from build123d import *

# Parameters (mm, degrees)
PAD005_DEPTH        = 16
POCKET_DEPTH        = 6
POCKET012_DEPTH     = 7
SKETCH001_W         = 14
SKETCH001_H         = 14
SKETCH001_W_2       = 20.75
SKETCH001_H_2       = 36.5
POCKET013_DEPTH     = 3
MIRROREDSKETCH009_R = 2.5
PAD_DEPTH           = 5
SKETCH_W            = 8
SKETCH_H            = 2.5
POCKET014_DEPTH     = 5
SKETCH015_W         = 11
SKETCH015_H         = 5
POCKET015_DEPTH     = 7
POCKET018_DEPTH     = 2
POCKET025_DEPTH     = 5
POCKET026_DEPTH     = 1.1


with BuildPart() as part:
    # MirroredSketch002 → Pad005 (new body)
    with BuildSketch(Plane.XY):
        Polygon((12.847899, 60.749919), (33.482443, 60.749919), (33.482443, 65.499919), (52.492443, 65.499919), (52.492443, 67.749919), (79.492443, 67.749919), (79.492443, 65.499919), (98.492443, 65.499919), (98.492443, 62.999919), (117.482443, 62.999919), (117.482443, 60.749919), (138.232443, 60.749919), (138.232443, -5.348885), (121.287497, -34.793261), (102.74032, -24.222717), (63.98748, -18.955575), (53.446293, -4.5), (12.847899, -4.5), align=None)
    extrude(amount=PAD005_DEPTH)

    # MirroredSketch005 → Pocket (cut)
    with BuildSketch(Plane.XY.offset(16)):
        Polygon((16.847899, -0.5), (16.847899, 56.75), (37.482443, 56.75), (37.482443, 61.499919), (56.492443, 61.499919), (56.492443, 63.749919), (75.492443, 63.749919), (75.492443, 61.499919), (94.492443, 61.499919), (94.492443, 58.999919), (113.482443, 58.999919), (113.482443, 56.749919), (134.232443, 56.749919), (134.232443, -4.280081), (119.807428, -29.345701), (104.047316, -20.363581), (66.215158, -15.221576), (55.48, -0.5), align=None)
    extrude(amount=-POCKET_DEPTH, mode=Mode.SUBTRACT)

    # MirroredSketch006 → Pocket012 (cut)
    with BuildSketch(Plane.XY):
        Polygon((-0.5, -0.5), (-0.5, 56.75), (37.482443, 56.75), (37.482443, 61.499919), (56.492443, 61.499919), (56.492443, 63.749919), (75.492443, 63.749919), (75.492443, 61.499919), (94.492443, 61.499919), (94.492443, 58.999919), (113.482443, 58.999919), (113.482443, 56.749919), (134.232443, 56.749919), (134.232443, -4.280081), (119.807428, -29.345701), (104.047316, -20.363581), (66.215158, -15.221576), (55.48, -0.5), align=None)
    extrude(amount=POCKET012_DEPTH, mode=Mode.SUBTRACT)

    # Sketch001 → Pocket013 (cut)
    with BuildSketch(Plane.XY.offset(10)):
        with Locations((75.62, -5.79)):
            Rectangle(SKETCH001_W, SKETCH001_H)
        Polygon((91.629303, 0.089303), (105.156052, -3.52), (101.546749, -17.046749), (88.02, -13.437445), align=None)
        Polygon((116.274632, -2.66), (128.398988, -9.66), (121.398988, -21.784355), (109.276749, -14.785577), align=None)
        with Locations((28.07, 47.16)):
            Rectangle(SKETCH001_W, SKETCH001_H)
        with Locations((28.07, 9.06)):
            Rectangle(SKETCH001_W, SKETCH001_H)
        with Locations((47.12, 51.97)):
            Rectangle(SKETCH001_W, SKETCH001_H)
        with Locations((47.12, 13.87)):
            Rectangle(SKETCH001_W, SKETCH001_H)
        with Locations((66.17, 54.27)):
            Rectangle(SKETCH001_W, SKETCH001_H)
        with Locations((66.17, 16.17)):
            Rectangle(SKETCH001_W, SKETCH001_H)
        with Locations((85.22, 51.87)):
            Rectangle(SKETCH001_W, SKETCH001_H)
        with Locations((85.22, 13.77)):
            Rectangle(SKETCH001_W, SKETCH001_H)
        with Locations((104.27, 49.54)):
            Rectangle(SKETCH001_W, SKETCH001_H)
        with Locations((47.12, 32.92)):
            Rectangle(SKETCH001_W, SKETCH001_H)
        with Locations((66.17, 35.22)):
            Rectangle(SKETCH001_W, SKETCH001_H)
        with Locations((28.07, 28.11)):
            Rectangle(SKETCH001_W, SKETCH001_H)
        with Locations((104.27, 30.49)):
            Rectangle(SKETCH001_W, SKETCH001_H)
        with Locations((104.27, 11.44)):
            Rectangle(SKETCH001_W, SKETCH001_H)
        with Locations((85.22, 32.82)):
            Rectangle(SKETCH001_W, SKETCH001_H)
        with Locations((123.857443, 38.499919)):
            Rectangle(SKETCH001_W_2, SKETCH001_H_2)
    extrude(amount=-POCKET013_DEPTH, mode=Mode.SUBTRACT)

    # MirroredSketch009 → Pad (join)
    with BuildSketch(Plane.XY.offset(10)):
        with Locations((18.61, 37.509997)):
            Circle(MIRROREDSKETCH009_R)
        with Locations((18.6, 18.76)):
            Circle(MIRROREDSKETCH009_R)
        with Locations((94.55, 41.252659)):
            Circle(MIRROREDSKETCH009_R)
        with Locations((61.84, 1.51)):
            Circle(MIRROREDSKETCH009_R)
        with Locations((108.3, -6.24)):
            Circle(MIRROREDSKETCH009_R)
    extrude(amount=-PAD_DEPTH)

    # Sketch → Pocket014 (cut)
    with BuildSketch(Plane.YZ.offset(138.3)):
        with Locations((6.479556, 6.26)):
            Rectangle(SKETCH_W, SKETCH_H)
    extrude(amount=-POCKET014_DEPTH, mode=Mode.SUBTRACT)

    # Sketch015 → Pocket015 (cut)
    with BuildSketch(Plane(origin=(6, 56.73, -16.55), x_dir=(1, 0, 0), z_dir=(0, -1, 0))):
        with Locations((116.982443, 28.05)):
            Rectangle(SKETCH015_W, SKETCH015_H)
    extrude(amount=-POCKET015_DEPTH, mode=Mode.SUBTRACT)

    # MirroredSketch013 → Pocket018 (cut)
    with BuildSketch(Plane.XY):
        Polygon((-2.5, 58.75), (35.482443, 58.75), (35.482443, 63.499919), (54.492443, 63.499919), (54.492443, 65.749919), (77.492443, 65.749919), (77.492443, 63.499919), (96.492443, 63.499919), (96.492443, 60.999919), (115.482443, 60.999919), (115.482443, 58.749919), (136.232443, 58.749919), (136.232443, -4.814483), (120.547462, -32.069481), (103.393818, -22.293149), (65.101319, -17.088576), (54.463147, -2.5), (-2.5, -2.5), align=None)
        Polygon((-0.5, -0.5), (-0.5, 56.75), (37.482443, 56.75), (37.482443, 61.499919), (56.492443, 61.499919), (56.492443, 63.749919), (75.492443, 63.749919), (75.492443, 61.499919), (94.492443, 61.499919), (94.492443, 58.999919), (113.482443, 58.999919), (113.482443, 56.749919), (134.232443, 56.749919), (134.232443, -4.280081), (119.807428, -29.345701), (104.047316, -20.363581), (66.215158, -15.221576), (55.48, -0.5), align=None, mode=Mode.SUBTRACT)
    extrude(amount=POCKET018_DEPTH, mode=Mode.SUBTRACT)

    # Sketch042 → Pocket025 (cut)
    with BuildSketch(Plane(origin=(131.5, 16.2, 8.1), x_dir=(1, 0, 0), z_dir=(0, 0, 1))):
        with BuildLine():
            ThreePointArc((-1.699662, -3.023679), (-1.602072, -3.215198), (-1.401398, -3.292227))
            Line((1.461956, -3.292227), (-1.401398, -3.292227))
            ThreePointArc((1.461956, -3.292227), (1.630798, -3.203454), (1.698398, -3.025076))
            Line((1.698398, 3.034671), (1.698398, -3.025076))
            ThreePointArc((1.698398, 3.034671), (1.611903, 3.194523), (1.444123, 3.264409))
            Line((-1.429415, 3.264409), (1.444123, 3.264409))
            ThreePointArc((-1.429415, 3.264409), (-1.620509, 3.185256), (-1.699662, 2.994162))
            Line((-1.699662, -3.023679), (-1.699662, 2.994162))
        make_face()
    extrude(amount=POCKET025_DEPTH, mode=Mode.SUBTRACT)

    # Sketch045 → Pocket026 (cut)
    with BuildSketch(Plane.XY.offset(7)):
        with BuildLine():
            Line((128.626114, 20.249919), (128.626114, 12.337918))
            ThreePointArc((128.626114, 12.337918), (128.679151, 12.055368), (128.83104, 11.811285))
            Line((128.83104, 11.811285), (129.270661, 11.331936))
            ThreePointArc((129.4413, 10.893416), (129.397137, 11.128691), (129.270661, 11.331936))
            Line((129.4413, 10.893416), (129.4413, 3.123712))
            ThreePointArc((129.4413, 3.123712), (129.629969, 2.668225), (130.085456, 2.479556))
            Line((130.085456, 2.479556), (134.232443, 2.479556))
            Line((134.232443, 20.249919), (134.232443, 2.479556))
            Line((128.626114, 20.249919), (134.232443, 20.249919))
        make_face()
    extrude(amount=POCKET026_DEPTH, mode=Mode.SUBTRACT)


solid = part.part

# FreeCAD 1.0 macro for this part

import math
import FreeCAD as App
import Part
import Sketcher
Q = App.Units.Quantity


def add_polygon(sketch, points):
    """Adds a closed chain of lines whose ends are joined by coincident constraints."""
    first, n = sketch.GeometryCount, len(points)
    for a, b in zip(points, points[1:] + points[:1]):
        sketch.addGeometry(Part.LineSegment(App.Vector(*a, 0), App.Vector(*b, 0)), False)
    for i in range(n):
        sketch.addConstraint(Sketcher.Constraint("Coincident", first + i, 2, first + (i + 1) % n, 1))

doc = App.newDocument("Part")
body = doc.addObject("PartDesign::Body", "Body")

# Sketch on XY plane
sketch1 = doc.addObject("Sketcher::SketchObject", "Sketch")
body.addObject(sketch1)
sketch1.AttachmentSupport = (doc.XY_Plane, [""])
sketch1.MapMode = "FlatFace"
add_polygon(sketch1, [(33.5, 60.7), (12.8, 60.7), (12.8, -4.5), (53.4, -4.5), (64, -19), (102.7, -24.2), (121.3, -34.8), (138.2, -5.3), (138.2, 60.7), (117.5, 60.7), (117.5, 63), (98.5, 63), (98.5, 65.5), (79.5, 65.5), (79.5, 67.7), (52.5, 67.7), (52.5, 65.5), (33.5, 65.5)])  # lines 0-17
sketch1.addConstraint([
    Sketcher.Constraint("Horizontal", 0),
    Sketcher.Constraint("Vertical", 1),
    Sketcher.Constraint("Horizontal", 2),
    Sketcher.Constraint("Vertical", 7),
    Sketcher.Constraint("Horizontal", 8),
    Sketcher.Constraint("Vertical", 9),
    Sketcher.Constraint("Horizontal", 10),
    Sketcher.Constraint("Vertical", 11),
    Sketcher.Constraint("Horizontal", 12),
    Sketcher.Constraint("Vertical", 13),
    Sketcher.Constraint("Horizontal", 14),
    Sketcher.Constraint("Vertical", 15),
    Sketcher.Constraint("Horizontal", 16),
    Sketcher.Constraint("Vertical", 17),
    Sketcher.Constraint("Horizontal", 0, 2, 7, 2),
    Sketcher.Constraint("Horizontal", 12, 2, 15, 2),
    Sketcher.Constraint("Equal", 9, 13),
    Sketcher.Constraint("DistanceX", 12, 2, 12, 1, Q("19 mm")),
    Sketcher.Constraint("DistanceX", 14, 2, 14, 1, Q("27 mm")),
    Sketcher.Constraint("DistanceY", 11, 1, 11, 2, Q("2.5 mm")),
    Sketcher.Constraint("Angle", 3, Q("-53.899999 deg")),
    Sketcher.Constraint("DistanceY", 8, 2, 13, 2, Q("7 mm")),
    Sketcher.Constraint("DistanceX", 8, 2, 8, 1, Q("20.75 mm")),
    Sketcher.Constraint("DistanceX", 10, 2, 10, 1, Q("18.99 mm")),
    Sketcher.Constraint("DistanceX", 16, 2, 16, 1, Q("19.01 mm")),
    Sketcher.Constraint("DistanceY", 1, 2, -1, 1, Q("4.5 mm")),
    Sketcher.Constraint("Angle", 4, Q("-7.740001 deg")),
    Sketcher.Constraint("Angle", 5, Q("-29.68 deg")),
    Sketcher.Constraint("Angle", 6, Q("60.080001 deg")),
    Sketcher.Constraint("DistanceY", 1, 2, 1, 1, Q("65.249919 mm")),
    Sketcher.Constraint("DistanceX", -1, 1, 0, 2, Q("12.847899 mm")),
    Sketcher.Constraint("DistanceX", 1, 2, 5, 2, Q("108.439598 mm")),
    Sketcher.Constraint("Distance", 5, Q("21.347931 mm")),
    Sketcher.Constraint("DistanceX", 0, 2, 0, 1, Q("20.634544 mm")),
    Sketcher.Constraint("DistanceX", 2, 1, 2, 2, Q("40.598394 mm")),
    Sketcher.Constraint("DistanceY", 7, 1, 7, 2, Q("66.098804 mm")),
])
pad1 = doc.addObject("PartDesign::Pad", "Pad")
body.addObject(pad1)
pad1.Profile = sketch1
pad1.Length = 16

# Sketch on XY plane
sketch2 = doc.addObject("Sketcher::SketchObject", "Sketch001")
body.addObject(sketch2)
sketch2.AttachmentSupport = (doc.XY_Plane, [""])
sketch2.MapMode = "FlatFace"
sketch2.AttachmentOffset = App.Placement(App.Vector(0, 0, 16), App.Rotation())
add_polygon(sketch2, [(16.8, 56.8), (16.8, -0.5), (55.5, -0.5), (66.2, -15.2), (104, -20.4), (119.8, -29.3), (134.2, -4.3), (134.2, 56.7), (113.5, 56.7), (113.5, 59), (94.5, 59), (94.5, 61.5), (75.5, 61.5), (75.5, 63.7), (56.5, 63.7), (56.5, 61.5), (37.5, 61.5), (37.5, 56.8)])  # lines 0-17
sketch2.addConstraint([
    Sketcher.Constraint("Vertical", 0),
    Sketcher.Constraint("Horizontal", 1),
    Sketcher.Constraint("Vertical", 6),
    Sketcher.Constraint("Horizontal", 7),
    Sketcher.Constraint("Vertical", 8),
    Sketcher.Constraint("Horizontal", 9),
    Sketcher.Constraint("Vertical", 10),
    Sketcher.Constraint("Horizontal", 11),
    Sketcher.Constraint("Vertical", 12),
    Sketcher.Constraint("Horizontal", 13),
    Sketcher.Constraint("Vertical", 14),
    Sketcher.Constraint("Horizontal", 15),
    Sketcher.Constraint("Vertical", 16),
    Sketcher.Constraint("Horizontal", 17),
    Sketcher.Constraint("Horizontal", 11, 2, 14, 2),
    Sketcher.Constraint("Equal", 11, 13),
    Sketcher.Constraint("Equal", 8, 12),
    Sketcher.Constraint("DistanceX", 11, 2, 11, 1, Q("19 mm")),
    Sketcher.Constraint("DistanceY", 10, 1, 10, 2, Q("2.5 mm")),
    Sketcher.Constraint("Angle", 2, Q("-53.9 deg")),
    Sketcher.Constraint("DistanceY", 7, 2, 12, 2, Q("7 mm")),
    Sketcher.Constraint("DistanceX", 7, 2, 7, 1, Q("20.75 mm")),
    Sketcher.Constraint("DistanceX", 9, 2, 9, 1, Q("18.99 mm")),
    Sketcher.Constraint("DistanceX", 15, 2, 15, 1, Q("19.01 mm")),
    Sketcher.Constraint("DistanceY", 0, 2, 0, 1, Q("57.25 mm")),
    Sketcher.Constraint("DistanceY", 6, 1, 6, 2, Q("61.03 mm")),
    Sketcher.Constraint("DistanceY", 0, 2, -1, 1, Q("0.5 mm")),
    Sketcher.Constraint("Angle", 3, Q("-7.739999 deg")),
    Sketcher.Constraint("Angle", 4, Q("-29.680001 deg")),
    Sketcher.Constraint("Angle", 5, Q("60.080001 deg")),
    Sketcher.Constraint("Distance", 2, Q("18.22 mm")),
    Sketcher.Constraint("Distance", 3, Q("38.18 mm")),
    Sketcher.Constraint("Distance", 4, Q("18.14 mm")),
    Sketcher.Constraint("Distance", 5, Q("28.919999 mm")),
    Sketcher.Constraint("DistanceX", -1, 1, 1, 2, Q("55.48 mm")),
    Sketcher.Constraint("DistanceX", 1, 1, 1, 2, Q("38.632101 mm")),
])
pocket1 = doc.addObject("PartDesign::Pocket", "Pocket")
body.addObject(pocket1)
pocket1.Profile = sketch2
pocket1.Length = 6

# Sketch on XY plane
sketch3 = doc.addObject("Sketcher::SketchObject", "Sketch002")
body.addObject(sketch3)
sketch3.AttachmentSupport = (doc.XY_Plane, [""])
sketch3.MapMode = "FlatFace"
add_polygon(sketch3, [(-0.5, 56.8), (-0.5, -0.5), (55.5, -0.5), (66.2, -15.2), (104, -20.4), (119.8, -29.3), (134.2, -4.3), (134.2, 56.7), (113.5, 56.7), (113.5, 59), (94.5, 59), (94.5, 61.5), (75.5, 61.5), (75.5, 63.7), (56.5, 63.7), (56.5, 61.5), (37.5, 61.5), (37.5, 56.8)])  # lines 0-17
sketch3.addConstraint([
    Sketcher.Constraint("Vertical", 0),
    Sketcher.Constraint("Horizontal", 1),
    Sketcher.Constraint("Vertical", 6),
    Sketcher.Constraint("Horizontal", 7),
    Sketcher.Constraint("Vertical", 8),
    Sketcher.Constraint("Horizontal", 9),
    Sketcher.Constraint("Vertical", 10),
    Sketcher.Constraint("Horizontal", 11),
    Sketcher.Constraint("Vertical", 12),
    Sketcher.Constraint("Horizontal", 13),
    Sketcher.Constraint("Vertical", 14),
    Sketcher.Constraint("Horizontal", 15),
    Sketcher.Constraint("Vertical", 16),
    Sketcher.Constraint("Horizontal", 17),
    Sketcher.Constraint("Horizontal", 11, 2, 14, 2),
    Sketcher.Constraint("Equal", 11, 13),
    Sketcher.Constraint("Equal", 8, 12),
    Sketcher.Constraint("DistanceX", 11, 2, 11, 1, Q("19 mm")),
    Sketcher.Constraint("DistanceY", 10, 1, 10, 2, Q("2.5 mm")),
    Sketcher.Constraint("Angle", 2, Q("-53.9 deg")),
    Sketcher.Constraint("DistanceY", 7, 2, 12, 2, Q("7 mm")),
    Sketcher.Constraint("DistanceX", 1, 1, 1, 2, Q("55.98 mm")),
    Sketcher.Constraint("DistanceX", 7, 2, 7, 1, Q("20.75 mm")),
    Sketcher.Constraint("DistanceX", 9, 2, 9, 1, Q("18.99 mm")),
    Sketcher.Constraint("DistanceX", 15, 2, 15, 1, Q("19.01 mm")),
    Sketcher.Constraint("DistanceY", 0, 2, 0, 1, Q("57.25 mm")),
    Sketcher.Constraint("DistanceY", 6, 1, 6, 2, Q("61.03 mm")),
    Sketcher.Constraint("DistanceX", 0, 2, -1, 1, Q("0.5 mm")),
    Sketcher.Constraint("DistanceY", 0, 2, -1, 1, Q("0.5 mm")),
    Sketcher.Constraint("Angle", 3, Q("-7.739999 deg")),
    Sketcher.Constraint("Angle", 4, Q("-29.680001 deg")),
    Sketcher.Constraint("Angle", 5, Q("60.080001 deg")),
    Sketcher.Constraint("Distance", 2, Q("18.22 mm")),
    Sketcher.Constraint("Distance", 3, Q("38.18 mm")),
    Sketcher.Constraint("Distance", 4, Q("18.14 mm")),
    Sketcher.Constraint("Distance", 5, Q("28.919999 mm")),
])
pocket2 = doc.addObject("PartDesign::Pocket", "Pocket001")
body.addObject(pocket2)
pocket2.Profile = sketch3
pocket2.Length = 7
pocket2.Reversed = True

# Sketch on XY plane
sketch4 = doc.addObject("Sketcher::SketchObject", "Sketch003")
body.addObject(sketch4)
sketch4.AttachmentSupport = (doc.XY_Plane, [""])
sketch4.MapMode = "FlatFace"
sketch4.AttachmentOffset = App.Placement(App.Vector(0, 0, 10), App.Rotation())
add_polygon(sketch4, [(69, 1), (69, -13), (83, -13), (83, 1)])  # lines 0-3
add_polygon(sketch4, [(105, -4), (92, 0), (88, -13), (102, -17)])  # lines 4-7
add_polygon(sketch4, [(128, -10), (116, -3), (109, -15), (121, -22)])  # lines 8-11
add_polygon(sketch4, [(21, 54), (21, 40), (35, 40), (35, 54)])  # lines 12-15
add_polygon(sketch4, [(21, 16), (21, 2), (35, 2), (35, 16)])  # lines 16-19
add_polygon(sketch4, [(40, 59), (40, 45), (54, 45), (54, 59)])  # lines 20-23
add_polygon(sketch4, [(40, 21), (40, 7), (54, 7), (54, 21)])  # lines 24-27
add_polygon(sketch4, [(59, 61), (59, 47), (73, 47), (73, 61)])  # lines 28-31
add_polygon(sketch4, [(59, 23), (59, 9), (73, 9), (73, 23)])  # lines 32-35
add_polygon(sketch4, [(78, 59), (78, 45), (92, 45), (92, 59)])  # lines 36-39
add_polygon(sketch4, [(78, 21), (78, 7), (92, 7), (92, 21)])  # lines 40-43
add_polygon(sketch4, [(97, 57), (97, 43), (111, 43), (111, 57)])  # lines 44-47
add_polygon(sketch4, [(40, 40), (40, 26), (54, 26), (54, 40)])  # lines 48-51
add_polygon(sketch4, [(59, 42), (59, 28), (73, 28), (73, 42)])  # lines 52-55
add_polygon(sketch4, [(21, 35), (21, 21), (35, 21), (35, 35)])  # lines 56-59
add_polygon(sketch4, [(97, 37), (97, 23), (111, 23), (111, 37)])  # lines 60-63
add_polygon(sketch4, [(97, 18), (97, 4), (111, 4), (111, 18)])  # lines 64-67
add_polygon(sketch4, [(78, 40), (78, 26), (92, 26), (92, 40)])  # lines 68-71
add_polygon(sketch4, [(113, 57), (113, 20), (134, 20), (134, 57)])  # lines 72-75
sketch4.addConstraint([
    Sketcher.Constraint("Vertical", 0),
    Sketcher.Constraint("Horizontal", 1),
    Sketcher.Constraint("Vertical", 2),
    Sketcher.Constraint("Horizontal", 3),
    Sketcher.Constraint("Vertical", 12),
    Sketcher.Constraint("Horizontal", 13),
    Sketcher.Constraint("Vertical", 14),
    Sketcher.Constraint("Horizontal", 15),
    Sketcher.Constraint("Vertical", 16),
    Sketcher.Constraint("Horizontal", 17),
    Sketcher.Constraint("Vertical", 18),
    Sketcher.Constraint("Horizontal", 19),
    Sketcher.Constraint("Vertical", 20),
    Sketcher.Constraint("Horizontal", 21),
    Sketcher.Constraint("Vertical", 22),
    Sketcher.Constraint("Horizontal", 23),
    Sketcher.Constraint("Vertical", 24),
    Sketcher.Constraint("Horizontal", 25),
    Sketcher.Constraint("Vertical", 26),
    Sketcher.Constraint("Horizontal", 27),
    Sketcher.Constraint("Vertical", 28),
    Sketcher.Constraint("Horizontal", 29),
    Sketcher.Constraint("Vertical", 30),
    Sketcher.Constraint("Horizontal", 31),
    Sketcher.Constraint("Vertical", 32),
    Sketcher.Constraint("Horizontal", 33),
    Sketcher.Constraint("Vertical", 34),
    Sketcher.Constraint("Horizontal", 35),
    Sketcher.Constraint("Vertical", 36),
    Sketcher.Constraint("Horizontal", 37),
    Sketcher.Constraint("Vertical", 38),
    Sketcher.Constraint("Horizontal", 39),
    Sketcher.Constraint("Vertical", 40),
    Sketcher.Constraint("Horizontal", 41),
    Sketcher.Constraint("Vertical", 42),
    Sketcher.Constraint("Horizontal", 43),
    Sketcher.Constraint("Vertical", 44),
    Sketcher.Constraint("Horizontal", 45),
    Sketcher.Constraint("Vertical", 46),
    Sketcher.Constraint("Horizontal", 47),
    Sketcher.Constraint("Vertical", 48),
    Sketcher.Constraint("Horizontal", 49),
    Sketcher.Constraint("Vertical", 50),
    Sketcher.Constraint("Horizontal", 51),
    Sketcher.Constraint("Vertical", 52),
    Sketcher.Constraint("Horizontal", 53),
    Sketcher.Constraint("Vertical", 54),
    Sketcher.Constraint("Horizontal", 55),
    Sketcher.Constraint("Vertical", 56),
    Sketcher.Constraint("Horizontal", 57),
    Sketcher.Constraint("Vertical", 58),
    Sketcher.Constraint("Horizontal", 59),
    Sketcher.Constraint("Vertical", 60),
    Sketcher.Constraint("Horizontal", 61),
    Sketcher.Constraint("Vertical", 62),
    Sketcher.Constraint("Horizontal", 63),
    Sketcher.Constraint("Vertical", 64),
    Sketcher.Constraint("Horizontal", 65),
    Sketcher.Constraint("Vertical", 66),
    Sketcher.Constraint("Horizontal", 67),
    Sketcher.Constraint("Vertical", 68),
    Sketcher.Constraint("Horizontal", 69),
    Sketcher.Constraint("Vertical", 70),
    Sketcher.Constraint("Horizontal", 71),
    Sketcher.Constraint("Vertical", 72),
    Sketcher.Constraint("Horizontal", 73),
    Sketcher.Constraint("Vertical", 74),
    Sketcher.Constraint("Horizontal", 75),
    Sketcher.Constraint("Perpendicular", 4, 5),
    Sketcher.Constraint("Perpendicular", 5, 6),
    Sketcher.Constraint("Perpendicular", 6, 7),
    Sketcher.Constraint("Parallel", 8, 10),
    Sketcher.Constraint("Perpendicular", 10, 11),
    Sketcher.Constraint("Vertical", 15, 2, 16, 2),
    Sketcher.Constraint("Vertical", 14, 2, 17, 2),
    Sketcher.Constraint("Vertical", 23, 2, 24, 2),
    Sketcher.Constraint("Vertical", 22, 2, 25, 2),
    Sketcher.Constraint("Vertical", 31, 2, 32, 2),
    Sketcher.Constraint("Vertical", 30, 2, 33, 2),
    Sketcher.Constraint("Vertical", 39, 2, 40, 2),
    Sketcher.Constraint("Vertical", 38, 2, 41, 2),
    Sketcher.Constraint("Vertical", 27, 2, 48, 2),
    Sketcher.Constraint("Vertical", 26, 2, 49, 2),
    Sketcher.Constraint("Vertical", 35, 2, 52, 2),
    Sketcher.Constraint("Vertical", 34, 2, 53, 2),
    Sketcher.Constraint("Vertical", 19, 2, 56, 2),
    Sketcher.Constraint("Vertical", 18, 2, 57, 2),
    Sketcher.Constraint("Vertical", 47, 2, 60, 2),
    Sketcher.Constraint("Vertical", 46, 2, 61, 2),
    Sketcher.Constraint("Vertical", 63, 2, 64, 2),
    Sketcher.Constraint("Vertical", 62, 2, 65, 2),
    Sketcher.Constraint("Vertical", 43, 2, 68, 2),
    Sketcher.Constraint("Vertical", 42, 2, 69, 2),
    Sketcher.Constraint("Equal", 3, 13),
    Sketcher.Constraint("Equal", 19, 21),
    Sketcher.Constraint("Equal", 27, 29),
    Sketcher.Constraint("Equal", 35, 37),
    Sketcher.Constraint("Equal", 43, 45),
    Sketcher.Constraint("Equal", 71, 0),
    Sketcher.Constraint("Equal", 2, 12),
    Sketcher.Constraint("Equal", 14, 16),
    Sketcher.Constraint("Equal", 18, 20),
    Sketcher.Constraint("Equal", 22, 24),
    Sketcher.Constraint("Equal", 26, 28),
    Sketcher.Constraint("Equal", 30, 32),
    Sketcher.Constraint("Equal", 34, 36),
    Sketcher.Constraint("Equal", 38, 40),
    Sketcher.Constraint("Equal", 42, 44),
    Sketcher.Constraint("Equal", 46, 48),
    Sketcher.Constraint("Equal", 50, 52),
    Sketcher.Constraint("Equal", 54, 56),
    Sketcher.Constraint("Equal", 58, 60),
    Sketcher.Constraint("Equal", 62, 64),
    Sketcher.Constraint("Equal", 66, 68),
    Sketcher.Constraint("Equal", 4, 5),
    Sketcher.Constraint("Equal", 7, 8),
    Sketcher.Constraint("Equal", 8, 9),
    Sketcher.Constraint("DistanceX", 1, 1, 1, 2, Q("14 mm")),
    Sketcher.Constraint("Angle", 8, Q("150.000001 deg")),
    Sketcher.Constraint("Distance", 4, Q("14 mm")),
    Sketcher.Constraint("DistanceY", 72, 2, 72, 1, Q("36.5 mm")),
    Sketcher.Constraint("DistanceX", 73, 1, 73, 2, Q("20.75 mm")),
    Sketcher.Constraint("Angle", 4, Q("165.060002 deg")),
    Sketcher.Constraint("Angle", 9, Q("-119.989998 deg")),
    Sketcher.Constraint("DistanceX", -1, 1, 0, 2, Q("68.62 mm")),
    Sketcher.Constraint("DistanceY", 0, 2, -1, 1, Q("12.79 mm")),
    Sketcher.Constraint("DistanceX", -1, 1, 5, 2, Q("88.02 mm")),
    Sketcher.Constraint("DistanceY", 7, 2, -1, 1, Q("3.52 mm")),
    Sketcher.Constraint("DistanceY", 8, 2, -1, 1, Q("2.66 mm")),
    Sketcher.Constraint("DistanceX", -1, 1, 12, 2, Q("21.07 mm")),
    Sketcher.Constraint("DistanceY", -1, 1, 12, 2, Q("40.16 mm")),
    Sketcher.Constraint("DistanceY", -1, 1, 16, 2, Q("2.06 mm")),
    Sketcher.Constraint("DistanceX", -1, 1, 20, 2, Q("40.12 mm")),
    Sketcher.Constraint("DistanceY", -1, 1, 20, 2, Q("44.97 mm")),
    Sketcher.Constraint("DistanceY", -1, 1, 24, 2, Q("6.87 mm")),
    Sketcher.Constraint("DistanceX", -1, 1, 28, 2, Q("59.17 mm")),
    Sketcher.Constraint("DistanceY", -1, 1, 28, 2, Q("47.27 mm")),
    Sketcher.Constraint("DistanceY", -1, 1, 32, 2, Q("9.17 mm")),
    Sketcher.Constraint("DistanceX", -1, 1, 36, 2, Q("78.22 mm")),
    Sketcher.Constraint("DistanceY", -1, 1, 36, 2, Q("44.87 mm")),
    Sketcher.Constraint("DistanceY", -1, 1, 40, 2, Q("6.77 mm")),
    Sketcher.Constraint("DistanceX", -1, 1, 44, 2, Q("97.27 mm")),
    Sketcher.Constraint("DistanceY", -1, 1, 44, 2, Q("42.54 mm")),
    Sketcher.Constraint("DistanceY", -1, 1, 48, 2, Q("25.92 mm")),
    Sketcher.Constraint("DistanceY", -1, 1, 52, 2, Q("28.22 mm")),
    Sketcher.Constraint("DistanceY", -1, 1, 56, 2, Q("21.11 mm")),
    Sketcher.Constraint("DistanceY", -1, 1, 60, 2, Q("23.49 mm")),
    Sketcher.Constraint("DistanceY", -1, 1, 64, 2, Q("4.44 mm")),
    Sketcher.Constraint("DistanceY", -1, 1, 68, 2, Q("25.82 mm")),
    Sketcher.Constraint("DistanceX", -1, 1, 8, 2, Q("116.274632 mm")),
    Sketcher.Constraint("DistanceY", -1, 1, 72, 2, Q("20.249919 mm")),
    Sketcher.Constraint("DistanceX", -1, 1, 72, 2, Q("113.482443 mm")),
])
pocket3 = doc.addObject("PartDesign::Pocket", "Pocket002")
body.addObject(pocket3)
pocket3.Profile = sketch4
pocket3.Length = 3

# Sketch on XY plane
sketch5 = doc.addObject("Sketcher::SketchObject", "Sketch004")
body.addObject(sketch5)
sketch5.AttachmentSupport = (doc.XY_Plane, [""])
sketch5.MapMode = "FlatFace"
sketch5.AttachmentOffset = App.Placement(App.Vector(0, 0, 10), App.Rotation())
sketch5.addGeometry([
    Part.Circle(App.Vector(18.6, 37.5, 0), App.Vector(0, 0, 1), 2.5),  # 0
    Part.Circle(App.Vector(18.6, 18.8, 0), App.Vector(0, 0, 1), 2.5),  # 1
    Part.Circle(App.Vector(94.5, 41.3, 0), App.Vector(0, 0, 1), 2.5),  # 2
    Part.Circle(App.Vector(61.8, 1.5, 0), App.Vector(0, 0, 1), 2.5),  # 3
    Part.Circle(App.Vector(108.3, -6.2, 0), App.Vector(0, 0, 1), 2.5),  # 4
], False)
sketch5.addConstraint([
    Sketcher.Constraint("Equal", 0, 1),
    Sketcher.Constraint("Equal", 1, 2),
    Sketcher.Constraint("Equal", 2, 3),
    Sketcher.Constraint("Equal", 3, 4),
    Sketcher.Constraint("Diameter", 0, Q("5 mm")),
    Sketcher.Constraint("DistanceY", 4, 3, 1, 3, Q("25 mm")),
    Sketcher.Constraint("DistanceX", -1, 1, 1, 3, Q("18.6 mm")),
    Sketcher.Constraint("DistanceX", -1, 1, 4, 3, Q("108.3 mm")),
    Sketcher.Constraint("DistanceX", -1, 1, 0, 3, Q("18.61 mm")),
    Sketcher.Constraint("DistanceY", -1, 1, 1, 3, Q("18.76 mm")),
    Sketcher.Constraint("DistanceX", -1, 1, 2, 3, Q("94.55 mm")),
    Sketcher.Constraint("DistanceX", -1, 1, 3, 3, Q("61.84 mm")),
    Sketcher.Constraint("DistanceY", -1, 1, 3, 3, Q("1.51 mm")),
    Sketcher.Constraint("DistanceY", -1, 1, 2, 3, Q("41.252659 mm")),
    Sketcher.Constraint("DistanceY", -1, 1, 0, 3, Q("37.509997 mm")),
])
pad2 = doc.addObject("PartDesign::Pad", "Pad001")
body.addObject(pad2)
pad2.Profile = sketch5
pad2.Length = 5
pad2.Reversed = True

# Sketch on YZ plane
sketch6 = doc.addObject("Sketcher::SketchObject", "Sketch005")
body.addObject(sketch6)
sketch6.AttachmentSupport = (doc.YZ_Plane, [""])
sketch6.MapMode = "FlatFace"
sketch6.AttachmentOffset = App.Placement(App.Vector(0, 0, 138.3), App.Rotation())
add_polygon(sketch6, [(2.5, 7.5), (2.5, 5), (10.5, 5), (10.5, 7.5)])  # lines 0-3
sketch6.addConstraint([
    Sketcher.Constraint("Vertical", 0),
    Sketcher.Constraint("Horizontal", 1),
    Sketcher.Constraint("Vertical", 2),
    Sketcher.Constraint("Horizontal", 3),
    Sketcher.Constraint("DistanceX", 1, 1, 1, 2, Q("8 mm")),
    Sketcher.Constraint("DistanceY", 0, 2, 0, 1, Q("2.5 mm")),
    Sketcher.Constraint("DistanceY", -1, 1, 0, 2, Q("5.01 mm")),
    Sketcher.Constraint("DistanceX", -1, 1, 0, 2, Q("2.479556 mm")),
])
pocket4 = doc.addObject("PartDesign::Pocket", "Pocket003")
body.addObject(pocket4)
pocket4.Profile = sketch6
pocket4.Length = 5

# Sketch on XZ plane
sketch7 = doc.addObject("Sketcher::SketchObject", "Sketch006")
body.addObject(sketch7)
sketch7.AttachmentSupport = (doc.XZ_Plane, [""])
sketch7.MapMode = "FlatFace"
sketch7.AttachmentOffset = App.Placement(App.Vector(0, 0, -56.73), App.Rotation())
add_polygon(sketch7, [(117, 14), (117, 9), (128, 9), (128, 14)])  # lines 0-3
sketch7.addConstraint([
    Sketcher.Constraint("Vertical", 0),
    Sketcher.Constraint("Horizontal", 1),
    Sketcher.Constraint("Vertical", 2),
    Sketcher.Constraint("Horizontal", 3),
    Sketcher.Constraint("DistanceX", 1, 1, 1, 2, Q("11 mm")),
    Sketcher.Constraint("DistanceY", 0, 2, 0, 1, Q("5 mm")),
    Sketcher.Constraint("DistanceY", -1, 1, 0, 2, Q("9 mm")),
    Sketcher.Constraint("DistanceX", -1, 1, 0, 2, Q("117.482443 mm")),
])
pocket5 = doc.addObject("PartDesign::Pocket", "Pocket004")
body.addObject(pocket5)
pocket5.Profile = sketch7
pocket5.Length = 7

# Sketch on XY plane
sketch8 = doc.addObject("Sketcher::SketchObject", "Sketch007")
body.addObject(sketch8)
sketch8.AttachmentSupport = (doc.XY_Plane, [""])
sketch8.MapMode = "FlatFace"
add_polygon(sketch8, [(35.5, 58.8), (-2.5, 58.8), (-2.5, -2.5), (54.5, -2.5), (65.1, -17.1), (103.4, -22.3), (120.5, -32.1), (136.2, -4.8), (136.2, 58.7), (115.5, 58.7), (115.5, 61), (96.5, 61), (96.5, 63.5), (77.5, 63.5), (77.5, 65.7), (54.5, 65.7), (54.5, 63.5), (35.5, 63.5)])  # lines 0-17
add_polygon(sketch8, [(-0.5, -0.5), (-0.5, 56.8), (37.5, 56.8), (37.5, 61.5), (56.5, 61.5), (56.5, 63.7), (75.5, 63.7), (75.5, 61.5), (94.5, 61.5), (94.5, 59), (113.5, 59), (113.5, 56.7), (134.2, 56.7), (134.2, -4.3), (119.8, -29.3), (104, -20.4), (66.2, -15.2), (55.5, -0.5)])  # lines 18-35
sketch8.addConstraint([
    Sketcher.Constraint("Horizontal", 0),
    Sketcher.Constraint("Vertical", 1),
    Sketcher.Constraint("Horizontal", 2),
    Sketcher.Constraint("Vertical", 7),
    Sketcher.Constraint("Horizontal", 8),
    Sketcher.Constraint("Vertical", 9),
    Sketcher.Constraint("Horizontal", 10),
    Sketcher.Constraint("Vertical", 11),
    Sketcher.Constraint("Horizontal", 12),
    Sketcher.Constraint("Vertical", 13),
    Sketcher.Constraint("Horizontal", 14),
    Sketcher.Constraint("Vertical", 15),
    Sketcher.Constraint("Horizontal", 16),
    Sketcher.Constraint("Vertical", 17),
    Sketcher.Constraint("Vertical", 18),
    Sketcher.Constraint("Horizontal", 19),
    Sketcher.Constraint("Vertical", 20),
    Sketcher.Constraint("Horizontal", 21),
    Sketcher.Constraint("Vertical", 22),
    Sketcher.Constraint("Horizontal", 23),
    Sketcher.Constraint("Vertical", 24),
    Sketcher.Constraint("Horizontal", 25),
    Sketcher.Constraint("Vertical", 26),
    Sketcher.Constraint("Horizontal", 27),
    Sketcher.Constraint("Vertical", 28),
    Sketcher.Constraint("Horizontal", 29),
    Sketcher.Constraint("Vertical", 30),
    Sketcher.Constraint("Horizontal", 35),
    Sketcher.Constraint("Parallel", 6, 31),
    Sketcher.Constraint("Parallel", 5, 32),
    Sketcher.Constraint("Parallel", 4, 33),
    Sketcher.Constraint("Parallel", 3, 34),
    Sketcher.Constraint("Horizontal", 12, 2, 15, 2),
    Sketcher.Constraint("Horizontal", 21, 2, 24, 2),
    Sketcher.Constraint("Equal", 0, 19),
    Sketcher.Constraint("Equal", 16, 21),
    Sketcher.Constraint("Equal", 12, 23),
    Sketcher.Constraint("Equal", 23, 25),
    Sketcher.Constraint("Equal", 10, 27),
    Sketcher.Constraint("Equal", 8, 29),
    Sketcher.Constraint("Equal", 9, 13),
    Sketcher.Constraint("Equal", 17, 20),
    Sketcher.Constraint("Equal", 15, 22),
    Sketcher.Constraint("Equal", 11, 26),
    Sketcher.Constraint("Equal", 24, 28),
    Sketcher.Constraint("DistanceX", 12, 2, 12, 1, Q("19 mm")),
    Sketcher.Constraint("DistanceX", 14, 2, 14, 1, Q("23 mm")),
    Sketcher.Constraint("DistanceY", 11, 1, 11, 2, Q("2.5 mm")),
    Sketcher.Constraint("Angle", 3, Q("-53.900002 deg")),
    Sketcher.Constraint("DistanceY", 8, 2, 13, 2, Q("7 mm")),
    Sketcher.Constraint("DistanceX", 0, 2, 18, 2, Q("2 mm")),
    Sketcher.Constraint("DistanceY", 18, 2, 0, 2, Q("2 mm")),
    Sketcher.Constraint("DistanceY", 2, 2, 34, 2, Q("2 mm")),
    Sketcher.Constraint("DistanceX", 8, 2, 8, 1, Q("20.75 mm")),
    Sketcher.Constraint("DistanceX", 10, 2, 10, 1, Q("18.99 mm")),
    Sketcher.Constraint("DistanceX", 16, 2, 16, 1, Q("19.01 mm")),
    Sketcher.Constraint("DistanceX", 35, 2, 35, 1, Q("55.98 mm")),
    Sketcher.Constraint("DistanceY", 1, 2, 1, 1, Q("61.25 mm")),
    Sketcher.Constraint("DistanceY", 30, 2, 30, 1, Q("61.03 mm")),
    Sketcher.Constraint("DistanceX", 0, 2, -1, 1, Q("2.5 mm")),
    Sketcher.Constraint("DistanceY", 1, 2, -1, 1, Q("2.5 mm")),
    Sketcher.Constraint("Angle", 4, Q("-7.739999 deg")),
    Sketcher.Constraint("Angle", 5, Q("-29.680001 deg")),
    Sketcher.Constraint("Angle", 6, Q("60.08 deg")),
    Sketcher.Constraint("Distance", 31, Q("28.919999 mm")),
    Sketcher.Constraint("Distance", 32, Q("18.14 mm")),
    Sketcher.Constraint("Distance", 33, Q("38.18 mm")),
    Sketcher.Constraint("Distance", 34, Q("18.22 mm")),
    Sketcher.Constraint("DistanceY", 5, 2, 6, 2, Q("27.254998 mm")),
    Sketcher.Constraint("DistanceY", 3, 2, 33, 2, Q("1.867 mm")),
    Sketcher.Constraint("DistanceX", 3, 2, 4, 2, Q("38.292499 mm")),
    Sketcher.Constraint("DistanceY", 5, 2, 7, 2, Q("90.8194 mm")),
])
pocket6 = doc.addObject("PartDesign::Pocket", "Pocket005")
body.addObject(pocket6)
pocket6.Profile = sketch8
pocket6.Length = 2
pocket6.Reversed = True

# Sketch on XY plane
sketch9 = doc.addObject("Sketcher::SketchObject", "Sketch008")
body.addObject(sketch9)
sketch9.AttachmentSupport = (doc.XY_Plane, [""])
sketch9.MapMode = "FlatFace"
sketch9.AttachmentOffset = App.Placement(App.Vector(0, 0, 8.1), App.Rotation())
sketch9.addGeometry([
    Part.ArcOfCircle(Part.Circle(App.Vector(130.1, 13.21, 0), App.Vector(0, 0, 1), 0.3), math.radians(-174), math.radians(-90)),  # 0
    Part.LineSegment(App.Vector(130.1, 12.91, 0), App.Vector(132.96, 12.91, 0)),  # 1
    Part.ArcOfCircle(Part.Circle(App.Vector(132.93, 13.17, 0), App.Vector(0, 0, 1), 0.27), math.radians(-83), math.radians(0)),  # 2
    Part.LineSegment(App.Vector(133.2, 13.17, 0), App.Vector(133.2, 19.23, 0)),  # 3
    Part.ArcOfCircle(Part.Circle(App.Vector(132.93, 19.19, 0), App.Vector(0, 0, 1), 0.27), math.radians(9), math.radians(87)),  # 4
    Part.LineSegment(App.Vector(132.94, 19.46, 0), App.Vector(130.07, 19.46, 0)),  # 5
    Part.ArcOfCircle(Part.Circle(App.Vector(130.07, 19.19, 0), App.Vector(0, 0, 1), 0.27), math.radians(90), math.radians(180)),  # 6
    Part.LineSegment(App.Vector(129.8, 19.19, 0), App.Vector(129.8, 13.18, 0)),  # 7
], False)
sketch9.addConstraint([
    Sketcher.Constraint("Coincident", 0, 2, 1, 1),
    Sketcher.Constraint("Coincident", 1, 2, 2, 1),
    Sketcher.Constraint("Tangent", 2, 2, 3, 1),
    Sketcher.Constraint("Coincident", 3, 2, 4, 1),
    Sketcher.Constraint("Coincident", 4, 2, 5, 1),
    Sketcher.Constraint("Coincident", 5, 2, 6, 1),
    Sketcher.Constraint("Coincident", 6, 2, 7, 1),
    Sketcher.Constraint("Coincident", 7, 2, 0, 1),
    Sketcher.Constraint("Horizontal", 1),
    Sketcher.Constraint("Vertical", 3),
    Sketcher.Constraint("Horizontal", 5),
    Sketcher.Constraint("Vertical", 7),
    Sketcher.Constraint("Vertical", 2, 3, 4, 3),
    Sketcher.Constraint("Vertical", 6, 3, 5, 2),
    Sketcher.Constraint("Radius", 4, Q("0.27245 mm")),
    Sketcher.Constraint("Radius", 0, Q("0.299907 mm")),
    Sketcher.Constraint("Radius", 2, Q("0.269145 mm")),
    Sketcher.Constraint("Radius", 6, Q("0.270245 mm")),
    Sketcher.Constraint("DistanceY", 7, 2, 7, 1, Q("6.017841 mm")),
    Sketcher.Constraint("DistanceX", -1, 1, 0, 3, Q("130.098601 mm")),
    Sketcher.Constraint("DistanceX", -1, 1, 0, 2, Q("130.098602 mm")),
    Sketcher.Constraint("DistanceX", -1, 1, 3, 2, Q("133.198398 mm")),
    Sketcher.Constraint("DistanceY", 4, 3, 6, 3, Q("0.001799 mm")),
    Sketcher.Constraint("DistanceX", 1, 1, 1, 2, Q("2.863354 mm")),
    Sketcher.Constraint("DistanceX", 5, 2, 5, 1, Q("2.873538 mm")),
    Sketcher.Constraint("DistanceY", 3, 1, 3, 2, Q("6.059747 mm")),
    Sketcher.Constraint("DistanceY", -1, 1, 0, 3, Q("13.20768 mm")),
])
pocket7 = doc.addObject("PartDesign::Pocket", "Pocket006")
body.addObject(pocket7)
pocket7.Profile = sketch9
pocket7.Length = 5
pocket7.Reversed = True

# Sketch on XY plane
sketch10 = doc.addObject("Sketcher::SketchObject", "Sketch009")
body.addObject(sketch10)
sketch10.AttachmentSupport = (doc.XY_Plane, [""])
sketch10.MapMode = "FlatFace"
sketch10.AttachmentOffset = App.Placement(App.Vector(0, 0, 7), App.Rotation())
sketch10.addGeometry([
    Part.LineSegment(App.Vector(128.63, 20.25, 0), App.Vector(128.63, 12.34, 0)),  # 0
    Part.ArcOfCircle(Part.Circle(App.Vector(129.41, 12.34, 0), App.Vector(0, 0, 1), 0.78), math.radians(-180), math.radians(-137)),  # 1
    Part.LineSegment(App.Vector(128.83, 11.81, 0), App.Vector(129.27, 11.33, 0)),  # 2
    Part.ArcOfCircle(Part.Circle(App.Vector(128.79, 10.89, 0), App.Vector(0, 0, 1), 0.65), math.radians(0), math.radians(43)),  # 3
    Part.LineSegment(App.Vector(129.44, 10.89, 0), App.Vector(129.44, 3.12, 0)),  # 4
    Part.ArcOfCircle(Part.Circle(App.Vector(130.09, 3.12, 0), App.Vector(0, 0, 1), 0.64), math.radians(-180), math.radians(-90)),  # 5
    Part.LineSegment(App.Vector(130.09, 2.48, 0), App.Vector(134.23, 2.48, 0)),  # 6
    Part.LineSegment(App.Vector(134.23, 2.48, 0), App.Vector(134.23, 20.25, 0)),  # 7
    Part.LineSegment(App.Vector(134.23, 20.25, 0), App.Vector(128.63, 20.25, 0)),  # 8
], False)
sketch10.addConstraint([
    Sketcher.Constraint("Tangent", 0, 2, 1, 1),
    Sketcher.Constraint("Coincident", 1, 2, 2, 1),
    Sketcher.Constraint("Coincident", 2, 2, 3, 2),
    Sketcher.Constraint("Tangent", 3, 1, 4, 1),
    Sketcher.Constraint("Tangent", 4, 2, 5, 1),
    Sketcher.Constraint("Tangent", 5, 2, 6, 1),
    Sketcher.Constraint("Coincident", 6, 2, 7, 1),
    Sketcher.Constraint("Coincident", 7, 2, 8, 1),
    Sketcher.Constraint("Coincident", 8, 2, 0, 1),
    Sketcher.Constraint("Vertical", 0),
    Sketcher.Constraint("Vertical", 4),
    Sketcher.Constraint("Horizontal", 6),
    Sketcher.Constraint("Vertical", 7),
    Sketcher.Constraint("Horizontal", 8),
    Sketcher.Constraint("DistanceY", 0, 2, 0, 1, Q("7.912001 mm")),
    Sketcher.Constraint("Radius", 3, Q("0.648792 mm")),
    Sketcher.Constraint("Radius", 1, Q("0.779155 mm")),
    Sketcher.Constraint("Radius", 5, Q("0.644156 mm")),
    Sketcher.Constraint("DistanceX", 8, 2, 8, 1, Q("5.606329 mm")),
    Sketcher.Constraint("DistanceX", -1, 1, 3, 1, Q("129.4413 mm")),
    Sketcher.Constraint("DistanceX", 6, 1, 6, 2, Q("4.146987 mm")),
    Sketcher.Constraint("DistanceY", 4, 2, 4, 1, Q("7.769704 mm")),
    Sketcher.Constraint("DistanceY", 7, 1, 7, 2, Q("17.770363 mm")),
    Sketcher.Constraint("DistanceY", -1, 1, 1, 3, Q("12.337919 mm")),
    Sketcher.Constraint("DistanceX", -1, 1, 1, 2, Q("128.83104 mm")),
    Sketcher.Constraint("DistanceX", -1, 1, 2, 2, Q("129.270661 mm")),
])
pocket8 = doc.addObject("PartDesign::Pocket", "Pocket007")
body.addObject(pocket8)
pocket8.Profile = sketch10
pocket8.Length = 1.1
pocket8.Reversed = True

doc.recompute()
